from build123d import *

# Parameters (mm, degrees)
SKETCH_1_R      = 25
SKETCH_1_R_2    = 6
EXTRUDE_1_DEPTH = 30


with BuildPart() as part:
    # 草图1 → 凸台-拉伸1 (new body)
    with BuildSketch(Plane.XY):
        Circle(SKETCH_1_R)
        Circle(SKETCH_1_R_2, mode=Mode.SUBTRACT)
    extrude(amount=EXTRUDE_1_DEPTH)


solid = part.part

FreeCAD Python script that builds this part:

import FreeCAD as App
import Part
import Sketcher
from FreeCAD import Vector

doc = App.newDocument("Part")
body = doc.addObject("PartDesign::Body", "Body")

# Sketch on XY plane
sketch1 = body.newObject("Sketcher::SketchObject", "Sketch")
sketch1.AttachmentSupport = (doc.getObject("XY_Plane"), [""])
sketch1.MapMode = "FlatFace"
sketch1.addGeometry(Part.Circle(Vector(0, 0, 0), Vector(0, 0, 1), 25), False)
sketch1.addGeometry(Part.Circle(Vector(0, 0, 0), Vector(0, 0, 1), 6), False)
sketch1.addConstraint(Sketcher.Constraint("Coincident", 0, 3, -1, 1))
sketch1.addConstraint(Sketcher.Constraint("Coincident", 1, 3, -1, 1))
sketch1.addConstraint(Sketcher.Constraint("Diameter", 0, 50.0))
sketch1.addConstraint(Sketcher.Constraint("Diameter", 1, 12.0))
pad1 = body.newObject("PartDesign::Pad", "Pad")
pad1.Profile = sketch1
pad1.Length = 30

doc.recompute()
